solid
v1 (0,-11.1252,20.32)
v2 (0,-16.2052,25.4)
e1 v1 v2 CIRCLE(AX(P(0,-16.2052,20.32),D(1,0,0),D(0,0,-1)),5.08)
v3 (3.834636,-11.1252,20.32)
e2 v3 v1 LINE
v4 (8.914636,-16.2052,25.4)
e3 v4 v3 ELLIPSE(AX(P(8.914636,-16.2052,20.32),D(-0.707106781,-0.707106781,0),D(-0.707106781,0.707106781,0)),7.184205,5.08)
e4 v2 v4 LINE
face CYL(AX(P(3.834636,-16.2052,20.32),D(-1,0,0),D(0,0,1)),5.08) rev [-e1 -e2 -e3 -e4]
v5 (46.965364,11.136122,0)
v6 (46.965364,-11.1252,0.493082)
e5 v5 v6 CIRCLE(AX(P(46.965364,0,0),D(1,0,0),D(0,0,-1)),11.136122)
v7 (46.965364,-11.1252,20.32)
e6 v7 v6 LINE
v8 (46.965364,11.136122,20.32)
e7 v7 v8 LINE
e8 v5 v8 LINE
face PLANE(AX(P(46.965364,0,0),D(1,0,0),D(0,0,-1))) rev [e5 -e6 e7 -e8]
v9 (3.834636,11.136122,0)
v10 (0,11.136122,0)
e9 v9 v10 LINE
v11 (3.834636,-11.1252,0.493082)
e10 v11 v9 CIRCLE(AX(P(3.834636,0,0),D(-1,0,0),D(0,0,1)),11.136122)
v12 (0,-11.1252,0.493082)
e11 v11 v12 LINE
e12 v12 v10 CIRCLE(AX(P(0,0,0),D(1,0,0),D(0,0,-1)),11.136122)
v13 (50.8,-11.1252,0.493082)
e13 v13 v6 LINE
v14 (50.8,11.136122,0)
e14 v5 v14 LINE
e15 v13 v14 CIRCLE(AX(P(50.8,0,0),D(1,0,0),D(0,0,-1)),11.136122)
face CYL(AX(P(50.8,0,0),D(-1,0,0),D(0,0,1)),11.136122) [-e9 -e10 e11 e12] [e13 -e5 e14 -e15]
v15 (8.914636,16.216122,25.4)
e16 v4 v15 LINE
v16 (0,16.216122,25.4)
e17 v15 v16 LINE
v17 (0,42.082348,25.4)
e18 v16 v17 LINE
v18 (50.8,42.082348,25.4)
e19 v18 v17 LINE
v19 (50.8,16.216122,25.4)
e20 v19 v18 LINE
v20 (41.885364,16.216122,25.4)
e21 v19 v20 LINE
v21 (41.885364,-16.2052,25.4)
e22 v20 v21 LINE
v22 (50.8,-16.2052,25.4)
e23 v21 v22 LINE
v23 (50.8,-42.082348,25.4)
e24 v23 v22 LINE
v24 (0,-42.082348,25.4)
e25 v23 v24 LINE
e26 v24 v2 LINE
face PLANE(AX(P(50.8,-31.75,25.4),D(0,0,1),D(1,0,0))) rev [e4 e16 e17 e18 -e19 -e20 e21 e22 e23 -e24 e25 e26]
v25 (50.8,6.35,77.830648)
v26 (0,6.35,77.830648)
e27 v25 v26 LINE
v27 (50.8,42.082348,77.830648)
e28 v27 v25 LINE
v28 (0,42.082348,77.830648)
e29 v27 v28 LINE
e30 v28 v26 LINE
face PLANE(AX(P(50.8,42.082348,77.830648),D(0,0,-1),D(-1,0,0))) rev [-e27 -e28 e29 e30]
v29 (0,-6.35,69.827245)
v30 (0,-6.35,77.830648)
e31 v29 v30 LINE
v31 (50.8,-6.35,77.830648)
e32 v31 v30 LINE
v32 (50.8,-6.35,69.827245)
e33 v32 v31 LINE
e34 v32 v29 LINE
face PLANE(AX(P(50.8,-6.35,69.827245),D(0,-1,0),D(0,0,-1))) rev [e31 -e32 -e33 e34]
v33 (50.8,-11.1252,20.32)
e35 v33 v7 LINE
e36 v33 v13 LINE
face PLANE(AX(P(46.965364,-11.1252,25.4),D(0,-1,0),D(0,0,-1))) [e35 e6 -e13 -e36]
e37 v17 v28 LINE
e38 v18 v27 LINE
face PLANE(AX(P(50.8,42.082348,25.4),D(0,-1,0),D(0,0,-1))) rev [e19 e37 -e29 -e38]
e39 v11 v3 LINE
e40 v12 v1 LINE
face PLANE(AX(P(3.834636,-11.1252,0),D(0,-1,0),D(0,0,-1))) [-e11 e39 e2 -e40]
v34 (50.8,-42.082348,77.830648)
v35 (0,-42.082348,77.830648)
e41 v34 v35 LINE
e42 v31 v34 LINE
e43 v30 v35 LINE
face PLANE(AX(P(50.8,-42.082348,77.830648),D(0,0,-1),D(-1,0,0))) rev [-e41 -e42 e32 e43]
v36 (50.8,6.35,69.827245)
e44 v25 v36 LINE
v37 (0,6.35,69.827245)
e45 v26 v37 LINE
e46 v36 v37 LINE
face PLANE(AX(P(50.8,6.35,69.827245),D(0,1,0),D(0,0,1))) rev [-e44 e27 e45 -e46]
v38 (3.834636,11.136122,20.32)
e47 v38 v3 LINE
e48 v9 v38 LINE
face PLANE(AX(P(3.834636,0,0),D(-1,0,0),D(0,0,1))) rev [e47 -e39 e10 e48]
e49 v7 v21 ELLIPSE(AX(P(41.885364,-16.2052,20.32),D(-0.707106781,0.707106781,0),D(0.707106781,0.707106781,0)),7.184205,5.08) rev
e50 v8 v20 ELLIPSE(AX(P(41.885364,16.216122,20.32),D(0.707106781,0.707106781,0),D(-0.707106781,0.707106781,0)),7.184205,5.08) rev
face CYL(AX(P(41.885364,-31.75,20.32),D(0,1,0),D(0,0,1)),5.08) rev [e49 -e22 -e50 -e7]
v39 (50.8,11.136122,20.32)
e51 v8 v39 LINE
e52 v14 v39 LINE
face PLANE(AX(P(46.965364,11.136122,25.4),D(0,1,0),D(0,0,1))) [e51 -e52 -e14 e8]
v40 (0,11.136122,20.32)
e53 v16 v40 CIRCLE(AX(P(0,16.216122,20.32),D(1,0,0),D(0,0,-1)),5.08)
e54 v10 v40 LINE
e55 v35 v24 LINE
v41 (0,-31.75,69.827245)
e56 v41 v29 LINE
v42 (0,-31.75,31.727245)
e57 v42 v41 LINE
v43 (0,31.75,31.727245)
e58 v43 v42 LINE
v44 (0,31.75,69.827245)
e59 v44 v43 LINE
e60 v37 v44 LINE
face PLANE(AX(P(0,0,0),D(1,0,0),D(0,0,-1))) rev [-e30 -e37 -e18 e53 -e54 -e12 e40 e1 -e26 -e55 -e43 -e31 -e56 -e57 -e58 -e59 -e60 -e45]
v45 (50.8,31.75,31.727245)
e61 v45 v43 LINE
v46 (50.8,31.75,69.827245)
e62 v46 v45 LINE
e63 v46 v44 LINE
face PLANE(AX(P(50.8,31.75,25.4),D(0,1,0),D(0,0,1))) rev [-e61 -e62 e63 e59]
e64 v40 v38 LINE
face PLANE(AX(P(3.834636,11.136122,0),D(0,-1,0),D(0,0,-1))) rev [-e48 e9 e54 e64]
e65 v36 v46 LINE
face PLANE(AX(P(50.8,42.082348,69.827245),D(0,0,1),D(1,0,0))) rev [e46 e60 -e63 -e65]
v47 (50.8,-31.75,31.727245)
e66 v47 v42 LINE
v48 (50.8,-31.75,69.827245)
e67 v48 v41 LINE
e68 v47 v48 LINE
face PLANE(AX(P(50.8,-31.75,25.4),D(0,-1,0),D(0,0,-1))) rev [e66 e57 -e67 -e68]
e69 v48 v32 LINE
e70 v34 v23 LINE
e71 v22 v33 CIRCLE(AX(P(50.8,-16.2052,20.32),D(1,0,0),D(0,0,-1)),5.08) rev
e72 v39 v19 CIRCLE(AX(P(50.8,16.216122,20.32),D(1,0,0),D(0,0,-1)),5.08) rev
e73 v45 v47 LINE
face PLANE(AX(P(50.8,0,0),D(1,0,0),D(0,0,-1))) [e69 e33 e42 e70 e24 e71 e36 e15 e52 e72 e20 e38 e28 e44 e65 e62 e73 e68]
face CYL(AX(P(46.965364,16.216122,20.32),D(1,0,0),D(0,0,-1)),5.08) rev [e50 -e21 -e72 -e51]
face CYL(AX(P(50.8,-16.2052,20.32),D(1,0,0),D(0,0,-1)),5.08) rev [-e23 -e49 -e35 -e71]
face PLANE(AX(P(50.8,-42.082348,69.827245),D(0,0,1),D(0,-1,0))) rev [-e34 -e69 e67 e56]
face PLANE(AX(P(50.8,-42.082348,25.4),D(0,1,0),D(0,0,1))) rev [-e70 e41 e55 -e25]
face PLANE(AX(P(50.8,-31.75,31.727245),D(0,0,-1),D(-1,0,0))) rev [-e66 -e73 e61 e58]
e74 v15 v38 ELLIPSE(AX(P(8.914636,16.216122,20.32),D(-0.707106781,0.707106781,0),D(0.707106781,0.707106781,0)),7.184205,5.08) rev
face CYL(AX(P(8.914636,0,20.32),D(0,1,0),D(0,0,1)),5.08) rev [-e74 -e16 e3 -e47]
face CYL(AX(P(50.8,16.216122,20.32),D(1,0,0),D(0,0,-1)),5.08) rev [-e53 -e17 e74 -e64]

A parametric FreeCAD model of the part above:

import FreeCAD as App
import Part
import Sketcher

V = App.Vector
Q = App.Units.Quantity


def edges_at(feature, points):
    """Names of the edges that pass closest to the given points."""
    edges = feature.Shape.Edges
    near = lambda p: min(range(len(edges)), key=lambda i: edges[i].distToShape(Part.Vertex(*p))[0])
    return sorted({f"Edge{near(p) + 1}" for p in points})


def add_polygon(sketch, points):
    """Adds a closed chain of lines whose ends are joined by coincident constraints."""
    first, n = sketch.GeometryCount, len(points)
    for a, b in zip(points, points[1:] + points[:1]):
        sketch.addGeometry(Part.LineSegment(App.Vector(*a, 0), App.Vector(*b, 0)), False)
    for i in range(n):
        sketch.addConstraint(Sketcher.Constraint("Coincident", first + i, 2, first + (i + 1) % n, 1))

doc = App.newDocument("Part")
body = doc.addObject("PartDesign::Body", "Body")

# Sketch on YZ plane
sketch1 = doc.addObject("Sketcher::SketchObject", "Sketch")
body.addObject(sketch1)
sketch1.AttachmentSupport = (doc.YZ_Plane, [""])
sketch1.MapMode = "FlatFace"
sketch1.addGeometry(Part.Circle(V(0, 0, 0), V(0, 0, 1), 11), False)
sketch1.addConstraint([
    Sketcher.Constraint("Coincident", 0, 3, -1, 1),
    Sketcher.Constraint("Diameter", 0, 22.272243),
])
pad1 = doc.addObject("PartDesign::Pad", "Pad")
body.addObject(pad1)
pad1.Profile = sketch1
pad1.Length = Q("2 in")

# Sketch on YZ plane
sketch2 = doc.addObject("Sketcher::SketchObject", "Sketch001")
body.addObject(sketch2)
sketch2.AttachmentSupport = (doc.YZ_Plane, [""])
sketch2.MapMode = "FlatFace"
add_polygon(sketch2, [(11, 25), (11, 0), (-11, 0), (-11, 25)])  # lines 0-3
sketch2.addConstraint([
    Sketcher.Constraint("Vertical", 0),
    Sketcher.Constraint("Horizontal", 1),
    Sketcher.Constraint("Vertical", 2),
    Sketcher.Constraint("Horizontal", 3),
    Sketcher.Constraint("PointOnObject", 0, 2, -1),
    Sketcher.Constraint("DistanceY", 0, 2, 0, 1, Q("1 in")),
    Sketcher.Constraint("DistanceX", 1, 2, -1, 1, Q("0.438 in")),
    Sketcher.Constraint("DistanceX", 1, 2, 1, 1, 22.261322),
])
pad2 = doc.addObject("PartDesign::Pad", "Pad001")
body.addObject(pad2)
pad2.Profile = sketch2
pad2.Length = 3.834636

# Sketch on YZ plane
sketch3 = doc.addObject("Sketcher::SketchObject", "Sketch002")
body.addObject(sketch3)
sketch3.AttachmentSupport = (doc.YZ_Plane, [""])
sketch3.MapMode = "FlatFace"
add_polygon(sketch3, [(-32, 32), (-32, 25), (32, 25), (32, 32)])  # lines 0-3
sketch3.addConstraint([
    Sketcher.Constraint("Vertical", 0),
    Sketcher.Constraint("Horizontal", 1),
    Sketcher.Constraint("Vertical", 2),
    Sketcher.Constraint("Horizontal", 3),
    Sketcher.Constraint("DistanceX", 1, 1, 1, 2, Q("2.5 in")),
    Sketcher.Constraint("DistanceY", -1, 1, 0, 2, Q("1 in")),
    Sketcher.Constraint("DistanceX", 0, 2, -1, 1, Q("1.25 in")),
    Sketcher.Constraint("DistanceY", 0, 2, 0, 1, 6.327245),
])
pad3 = doc.addObject("PartDesign::Pad", "Pad002")
body.addObject(pad3)
pad3.Profile = sketch3
pad3.Length = Q("2 in")

# Sketch on YZ plane
sketch4 = doc.addObject("Sketcher::SketchObject", "Sketch003")
body.addObject(sketch4)
sketch4.AttachmentSupport = (doc.YZ_Plane, [""])
sketch4.MapMode = "FlatFace"
add_polygon(sketch4, [(-42, 70), (-42, 25), (-32, 25), (-32, 70)])  # lines 0-3
add_polygon(sketch4, [(32, 70), (32, 25), (42, 25), (42, 70)])  # lines 4-7
sketch4.addConstraint([
    Sketcher.Constraint("Vertical", 0),
    Sketcher.Constraint("Horizontal", 1),
    Sketcher.Constraint("Vertical", 2),
    Sketcher.Constraint("Horizontal", 3),
    Sketcher.Constraint("Vertical", 4),
    Sketcher.Constraint("Horizontal", 5),
    Sketcher.Constraint("Vertical", 6),
    Sketcher.Constraint("Horizontal", 7),
    Sketcher.Constraint("Symmetric", 1, 2, 4, 2, -2),
    Sketcher.Constraint("Symmetric", 3, 2, 6, 2, -2),
    Sketcher.Constraint("DistanceY", -1, 1, 0, 2, Q("1 in")),
    Sketcher.Constraint("DistanceX", 1, 2, 4, 2, Q("2.5 in")),
    Sketcher.Constraint("DistanceX", 1, 1, 1, 2, 10.332348),
    Sketcher.Constraint("DistanceY", 0, 2, 0, 1, 44.427245),
])
pad4 = doc.addObject("PartDesign::Pad", "Pad003")
body.addObject(pad4)
pad4.Profile = sketch4
pad4.Length = Q("2 in")

# Sketch on YZ plane
sketch5 = doc.addObject("Sketcher::SketchObject", "Sketch004")
body.addObject(sketch5)
sketch5.AttachmentSupport = (doc.YZ_Plane, [""])
sketch5.MapMode = "FlatFace"
add_polygon(sketch5, [(-42, 78), (-42, 70), (-6, 70), (-6, 78)])  # lines 0-3
add_polygon(sketch5, [(6, 78), (6, 70), (42, 70), (42, 78)])  # lines 4-7
sketch5.addConstraint([
    Sketcher.Constraint("Vertical", 0),
    Sketcher.Constraint("Horizontal", 1),
    Sketcher.Constraint("Vertical", 2),
    Sketcher.Constraint("Horizontal", 3),
    Sketcher.Constraint("Vertical", 4),
    Sketcher.Constraint("Horizontal", 5),
    Sketcher.Constraint("Vertical", 6),
    Sketcher.Constraint("Horizontal", 7),
    Sketcher.Constraint("Symmetric", 1, 2, 4, 2, -2),
    Sketcher.Constraint("Symmetric", 3, 2, 6, 2, -2),
    Sketcher.Constraint("DistanceX", 1, 2, 4, 2, Q("0.5 in")),
    Sketcher.Constraint("DistanceX", 1, 1, 1, 2, 35.732348),
    Sketcher.Constraint("DistanceY", 0, 2, 0, 1, 8.003403),
    Sketcher.Constraint("DistanceY", -1, 1, 0, 2, 69.827245),
])
pad5 = doc.addObject("PartDesign::Pad", "Pad004")
body.addObject(pad5)
pad5.Profile = sketch5
pad5.Length = Q("2 in")

# Sketch on YZ plane
sketch6 = doc.addObject("Sketcher::SketchObject", "Sketch005")
body.addObject(sketch6)
sketch6.AttachmentSupport = (doc.YZ_Plane, [""])
sketch6.MapMode = "FlatFace"
sketch6.AttachmentOffset = App.Placement(V(0, 0, 2 * 25.4), App.Rotation())
add_polygon(sketch6, [(-11, 25), (-11, 0), (11, 0), (11, 25)])  # lines 0-3
sketch6.addConstraint([
    Sketcher.Constraint("Vertical", 0),
    Sketcher.Constraint("Horizontal", 1),
    Sketcher.Constraint("Vertical", 2),
    Sketcher.Constraint("Horizontal", 3),
    Sketcher.Constraint("PointOnObject", 0, 2, -1),
    Sketcher.Constraint("DistanceY", 0, 2, 0, 1, Q("1 in")),
    Sketcher.Constraint("DistanceX", 0, 2, -1, 1, Q("0.438 in")),
    Sketcher.Constraint("DistanceX", 1, 1, 1, 2, 22.261322),
])
pad6 = doc.addObject("PartDesign::Pad", "Pad005")
body.addObject(pad6)
pad6.Profile = sketch6
pad6.Length = 3.834636
pad6.Reversed = True
doc.recompute()

fillet = doc.addObject("PartDesign::Fillet", "Fillet")
body.addObject(fillet)
fillet.Base = (pad6, edges_at(pad6, [
    (1.917, 11.136, 25.4),
    (3.835, 0.005, 25.4),
    (1.917, -11.125, 25.4),
    (46.965, 0.005, 25.4),
    (48.883, -11.125, 25.4),
    (48.883, 11.136, 25.4),
]))
fillet.Radius = Q("0.2 in")

doc.recompute()
